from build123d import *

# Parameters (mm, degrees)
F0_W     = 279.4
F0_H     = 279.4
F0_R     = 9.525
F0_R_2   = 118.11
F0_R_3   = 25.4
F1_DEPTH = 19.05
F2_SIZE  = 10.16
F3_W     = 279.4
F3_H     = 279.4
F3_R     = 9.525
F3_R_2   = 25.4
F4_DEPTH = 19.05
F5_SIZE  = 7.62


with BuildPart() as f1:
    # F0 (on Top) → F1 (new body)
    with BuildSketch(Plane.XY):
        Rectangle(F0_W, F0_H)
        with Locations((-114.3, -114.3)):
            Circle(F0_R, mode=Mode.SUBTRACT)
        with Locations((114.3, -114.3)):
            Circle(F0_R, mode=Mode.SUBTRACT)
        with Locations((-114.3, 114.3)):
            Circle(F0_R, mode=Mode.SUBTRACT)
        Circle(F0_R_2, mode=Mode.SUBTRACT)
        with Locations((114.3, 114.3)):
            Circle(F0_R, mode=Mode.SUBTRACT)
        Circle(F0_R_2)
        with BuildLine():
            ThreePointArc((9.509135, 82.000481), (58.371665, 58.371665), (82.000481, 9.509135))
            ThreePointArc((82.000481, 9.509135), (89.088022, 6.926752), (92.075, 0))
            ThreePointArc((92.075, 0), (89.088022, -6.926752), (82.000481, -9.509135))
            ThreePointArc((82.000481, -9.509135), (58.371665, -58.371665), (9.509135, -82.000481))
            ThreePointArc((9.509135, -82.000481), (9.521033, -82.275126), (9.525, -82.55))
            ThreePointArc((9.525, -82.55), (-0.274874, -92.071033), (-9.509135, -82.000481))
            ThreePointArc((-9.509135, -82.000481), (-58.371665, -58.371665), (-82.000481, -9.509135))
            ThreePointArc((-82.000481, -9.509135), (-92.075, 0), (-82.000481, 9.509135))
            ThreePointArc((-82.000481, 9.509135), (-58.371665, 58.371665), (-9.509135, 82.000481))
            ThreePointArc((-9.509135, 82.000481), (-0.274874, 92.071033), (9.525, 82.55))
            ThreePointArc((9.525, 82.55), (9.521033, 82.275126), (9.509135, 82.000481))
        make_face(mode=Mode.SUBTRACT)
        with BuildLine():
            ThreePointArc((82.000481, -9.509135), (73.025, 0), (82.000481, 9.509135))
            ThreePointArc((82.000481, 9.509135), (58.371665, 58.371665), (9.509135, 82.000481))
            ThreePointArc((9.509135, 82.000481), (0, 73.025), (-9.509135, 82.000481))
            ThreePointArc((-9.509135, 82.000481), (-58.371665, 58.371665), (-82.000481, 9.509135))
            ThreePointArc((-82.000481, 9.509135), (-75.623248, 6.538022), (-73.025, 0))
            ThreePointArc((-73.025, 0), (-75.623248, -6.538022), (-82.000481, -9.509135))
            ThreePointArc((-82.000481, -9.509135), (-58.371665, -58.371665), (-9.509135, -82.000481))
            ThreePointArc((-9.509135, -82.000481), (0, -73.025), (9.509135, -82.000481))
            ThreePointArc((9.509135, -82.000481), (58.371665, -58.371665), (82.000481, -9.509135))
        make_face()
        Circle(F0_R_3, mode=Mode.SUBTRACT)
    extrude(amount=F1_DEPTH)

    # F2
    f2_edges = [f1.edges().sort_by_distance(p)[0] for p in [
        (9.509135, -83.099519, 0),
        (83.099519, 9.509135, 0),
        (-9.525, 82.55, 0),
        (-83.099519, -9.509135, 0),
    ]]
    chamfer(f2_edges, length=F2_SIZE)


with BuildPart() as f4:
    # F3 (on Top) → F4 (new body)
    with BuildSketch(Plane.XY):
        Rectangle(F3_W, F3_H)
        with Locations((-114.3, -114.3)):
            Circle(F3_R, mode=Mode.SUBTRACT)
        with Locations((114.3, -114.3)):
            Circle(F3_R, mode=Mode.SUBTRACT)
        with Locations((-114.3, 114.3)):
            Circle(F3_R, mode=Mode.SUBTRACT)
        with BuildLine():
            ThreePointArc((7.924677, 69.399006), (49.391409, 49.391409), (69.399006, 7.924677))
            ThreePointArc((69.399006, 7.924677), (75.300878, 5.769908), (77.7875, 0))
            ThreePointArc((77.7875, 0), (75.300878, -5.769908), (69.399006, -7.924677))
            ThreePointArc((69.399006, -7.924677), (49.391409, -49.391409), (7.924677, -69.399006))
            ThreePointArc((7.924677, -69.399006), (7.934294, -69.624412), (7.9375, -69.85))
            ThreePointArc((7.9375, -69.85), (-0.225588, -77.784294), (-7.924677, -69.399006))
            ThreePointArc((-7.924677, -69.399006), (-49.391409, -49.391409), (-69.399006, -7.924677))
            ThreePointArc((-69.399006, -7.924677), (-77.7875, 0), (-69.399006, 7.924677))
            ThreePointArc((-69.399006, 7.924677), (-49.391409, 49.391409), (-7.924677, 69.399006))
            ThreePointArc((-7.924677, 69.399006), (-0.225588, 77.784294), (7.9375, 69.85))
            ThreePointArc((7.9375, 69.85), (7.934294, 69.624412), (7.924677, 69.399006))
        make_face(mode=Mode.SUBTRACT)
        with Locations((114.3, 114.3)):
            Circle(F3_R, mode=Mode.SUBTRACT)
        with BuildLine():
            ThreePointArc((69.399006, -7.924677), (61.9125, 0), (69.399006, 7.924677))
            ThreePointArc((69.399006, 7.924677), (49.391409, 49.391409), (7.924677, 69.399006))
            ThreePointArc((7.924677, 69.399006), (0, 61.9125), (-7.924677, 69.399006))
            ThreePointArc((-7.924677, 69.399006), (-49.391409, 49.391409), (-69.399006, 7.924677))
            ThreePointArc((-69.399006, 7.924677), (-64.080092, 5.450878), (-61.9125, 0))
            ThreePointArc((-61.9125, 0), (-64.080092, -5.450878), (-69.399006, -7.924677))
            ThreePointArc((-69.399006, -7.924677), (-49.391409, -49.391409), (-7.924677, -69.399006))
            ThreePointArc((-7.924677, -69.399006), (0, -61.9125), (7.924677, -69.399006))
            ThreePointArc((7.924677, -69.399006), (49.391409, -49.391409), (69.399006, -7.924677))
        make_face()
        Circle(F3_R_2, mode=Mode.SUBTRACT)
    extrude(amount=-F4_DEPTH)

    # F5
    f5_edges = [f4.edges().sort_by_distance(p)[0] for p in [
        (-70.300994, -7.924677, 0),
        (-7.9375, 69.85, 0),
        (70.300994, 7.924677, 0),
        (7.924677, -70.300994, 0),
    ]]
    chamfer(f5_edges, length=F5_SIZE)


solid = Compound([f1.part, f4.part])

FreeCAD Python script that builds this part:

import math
import FreeCAD as App
import Part
import Sketcher
Q = App.Units.Quantity


def edges_at(feature, points):
    """Names of the edges that pass closest to the given points."""
    edges = feature.Shape.Edges
    near = lambda p: min(range(len(edges)), key=lambda i: edges[i].distToShape(Part.Vertex(*p))[0])
    return sorted({f"Edge{near(p) + 1}" for p in points})

doc = App.newDocument("Part")
body = doc.addObject("PartDesign::Body", "Body")

sketch1 = body.newObject("Sketcher::SketchObject", "Sketch")
sketch1.AttachmentSupport = (doc.getObject("XY_Plane"), [""])
sketch1.MapMode = "FlatFace"
sketch1.addGeometry([
    Part.LineSegment(App.Vector(-139.7, 139.7, 0), App.Vector(-139.7, -139.7, 0)),
    Part.LineSegment(App.Vector(-139.7, -139.7, 0), App.Vector(139.7, -139.7, 0)),
    Part.LineSegment(App.Vector(139.7, -139.7, 0), App.Vector(139.7, 139.7, 0)),
    Part.LineSegment(App.Vector(139.7, 139.7, 0), App.Vector(-139.7, 139.7, 0)),
    Part.Circle(App.Vector(-114.3, -114.3, 0), App.Vector(0, 0, 1), 9.525),
    Part.ArcOfCircle(Part.Circle(App.Vector(0, -82.55, 0), App.Vector(0, 0, 1), 9.525), math.radians(176.692638), math.radians(360.000001)),
    Part.ArcOfCircle(Part.Circle(App.Vector(0, -82.55, 0), App.Vector(0, 0, 1), 9.525), math.radians(3.307359), math.radians(176.692641)),
    Part.ArcOfCircle(Part.Circle(App.Vector(0.000355, -82.549995, 0), App.Vector(0, 0, 1), 9.524645), math.radians(-0.000032), math.radians(3.307452)),
    Part.Circle(App.Vector(114.3, -114.3, 0), App.Vector(0, 0, 1), 9.525),
    Part.ArcOfCircle(Part.Circle(App.Vector(-82.55, 0, 0), App.Vector(0, 0, 1), 9.525), math.radians(86.692637), math.radians(273.307363)),
    Part.ArcOfCircle(Part.Circle(App.Vector(-82.549999, 0, 0), App.Vector(0, 0, 1), 9.524999), math.radians(-0.000001), math.radians(86.692642)),
    Part.ArcOfCircle(Part.Circle(App.Vector(-82.549999, 0, 0), App.Vector(0, 0, 1), 9.524999), math.radians(-86.692642), math.radians(0.000001)),
    Part.Circle(App.Vector(-114.3, 114.3, 0), App.Vector(0, 0, 1), 9.525),
    Part.Circle(App.Vector(0, 0, 0), App.Vector(0, 0, 1), 25.4),
    Part.ArcOfCircle(Part.Circle(App.Vector(82.55, 0, 0), App.Vector(0, 0, 1), 9.525), math.radians(-93.307364), math.radians(0.000001)),
    Part.ArcOfCircle(Part.Circle(App.Vector(82.55, 0, 0), App.Vector(0, 0, 1), 9.525), math.radians(93.307359), math.radians(266.692641)),
    Part.ArcOfCircle(Part.Circle(App.Vector(82.55, 0, 0), App.Vector(0, 0, 1), 9.525), math.radians(-0.000001), math.radians(93.307364)),
    Part.ArcOfCircle(Part.Circle(App.Vector(0.000355, 82.549995, 0), App.Vector(0, 0, 1), 9.524645), math.radians(-3.307452), math.radians(0.000032)),
    Part.ArcOfCircle(Part.Circle(App.Vector(0, 82.55, 0), App.Vector(0, 0, 1), 9.525), math.radians(-176.692641), math.radians(-3.307359)),
    Part.ArcOfCircle(Part.Circle(App.Vector(0, 82.55, 0), App.Vector(0, 0, 1), 9.525), math.radians(-0.000001), math.radians(183.307362)),
    Part.Circle(App.Vector(114.3, 114.3, 0), App.Vector(0, 0, 1), 9.525),
], False)
sketch1.addConstraint([
    Sketcher.Constraint("Coincident", 0, 2, 1, 1),
    Sketcher.Constraint("Coincident", 1, 2, 2, 1),
    Sketcher.Constraint("Coincident", 2, 2, 3, 1),
    Sketcher.Constraint("Coincident", 3, 2, 0, 1),
    Sketcher.Constraint("Coincident", 5, 1, 6, 2),
    Sketcher.Constraint("Coincident", 6, 1, 7, 2),
    Sketcher.Constraint("Coincident", 7, 1, 5, 2),
    Sketcher.Constraint("Coincident", 9, 1, 10, 2),
    Sketcher.Constraint("Coincident", 10, 1, 11, 2),
    Sketcher.Constraint("Coincident", 11, 1, 9, 2),
    Sketcher.Constraint("Coincident", 14, 1, 15, 2),
    Sketcher.Constraint("Coincident", 15, 1, 16, 2),
    Sketcher.Constraint("Coincident", 16, 1, 14, 2),
    Sketcher.Constraint("Coincident", 17, 1, 18, 2),
    Sketcher.Constraint("Coincident", 18, 1, 19, 2),
    Sketcher.Constraint("Coincident", 19, 1, 17, 2),
    Sketcher.Constraint("Vertical", 0),
    Sketcher.Constraint("Horizontal", 1),
    Sketcher.Constraint("Vertical", 2),
    Sketcher.Constraint("Horizontal", 3),
    Sketcher.Constraint("Coincident", 13, 3, -1, 1),
    Sketcher.Constraint("Coincident", 6, 3, 5, 3),
    Sketcher.Constraint("Coincident", 10, 3, 9, 3),
    Sketcher.Constraint("Coincident", 15, 3, 14, 3),
    Sketcher.Constraint("Coincident", 19, 3, 18, 3),
    Sketcher.Constraint("PointOnObject", 5, 3, -2),
    Sketcher.Constraint("PointOnObject", 9, 3, -1),
    Sketcher.Constraint("PointOnObject", 11, 3, -1),
    Sketcher.Constraint("PointOnObject", 14, 3, -1),
    Sketcher.Constraint("PointOnObject", 16, 3, -1),
    Sketcher.Constraint("PointOnObject", 18, 3, -2),
    Sketcher.Constraint("PointOnObject", 10, 1, -1),
    Sketcher.Constraint("PointOnObject", 16, 1, -1),
    Sketcher.Constraint("Diameter", 13, Q("2 in")),
    Sketcher.Constraint("Diameter", 4, Q("0.75 in")),
    Sketcher.Constraint("Diameter", 8, Q("0.75 in")),
    Sketcher.Constraint("Diameter", 12, Q("0.75 in")),
    Sketcher.Constraint("Diameter", 20, Q("0.75 in")),
    Sketcher.Constraint("DistanceX", 1, 1, 1, 2, Q("11 in")),
    Sketcher.Constraint("DistanceY", 0, 2, 0, 1, Q("11 in")),
    Sketcher.Constraint("Radius", 5, Q("0.375 in")),
    Sketcher.Constraint("Radius", 9, Q("0.375 in")),
    Sketcher.Constraint("Radius", 14, Q("0.375 in")),
    Sketcher.Constraint("Radius", 18, Q("0.375 in")),
    Sketcher.Constraint("DistanceX", 4, 3, 8, 3, Q("9 in")),
    Sketcher.Constraint("DistanceX", 0, 2, 4, 3, Q("1 in")),
    Sketcher.Constraint("DistanceY", 0, 2, 4, 3, Q("1 in")),
    Sketcher.Constraint("DistanceY", 1, 2, 8, 3, Q("1 in")),
    Sketcher.Constraint("DistanceX", 20, 3, 2, 2, Q("1 in")),
    Sketcher.Constraint("DistanceY", 20, 3, 2, 2, Q("1 in")),
    Sketcher.Constraint("DistanceX", 3, 2, 12, 3, Q("1 in")),
    Sketcher.Constraint("DistanceY", 12, 3, 3, 2, Q("1 in")),
    Sketcher.Constraint("DistanceX", 4, 3, -1, 1, Q("4.5 in")),
    Sketcher.Constraint("DistanceY", 4, 3, -1, 1, Q("4.5 in")),
    Sketcher.Constraint("DistanceY", 5, 3, -1, 1, Q("3.25 in")),
    Sketcher.Constraint("DistanceX", 9, 3, -1, 1, Q("3.25 in")),
    Sketcher.Constraint("DistanceX", -1, 1, 14, 3, Q("3.25 in")),
    Sketcher.Constraint("DistanceY", -1, 1, 18, 3, Q("3.25 in")),
    Sketcher.Constraint("DistanceY", 7, 1, -1, 1, Q("3.25 in")),
    Sketcher.Constraint("DistanceY", -1, 1, 19, 1, Q("3.25 in")),
    Sketcher.Constraint("Radius", 7, 9.524645),
    Sketcher.Constraint("Radius", 17, 9.524645),
    Sketcher.Constraint("DistanceY", 5, 1, -1, 1, 82.000481),
    Sketcher.Constraint("DistanceY", 6, 1, -1, 1, 82.000481),
    Sketcher.Constraint("DistanceX", 9, 1, -1, 1, 82.000481),
    Sketcher.Constraint("DistanceX", 11, 1, -1, 1, 82.000481),
    Sketcher.Constraint("DistanceX", -1, 1, 14, 1, 82.000481),
    Sketcher.Constraint("DistanceX", -1, 1, 15, 1, 82.000481),
    Sketcher.Constraint("DistanceY", -1, 1, 17, 1, 82.000481),
    Sketcher.Constraint("DistanceY", -1, 1, 18, 1, 82.000481),
])
pad1 = body.newObject("PartDesign::Pad", "Pad")
pad1.Profile = sketch1
pad1.Length = Q("0.75 in")
doc.recompute()

chamfer = body.newObject("PartDesign::Chamfer", "Chamfer")
chamfer.Base = (pad1, edges_at(pad1, [
    (-0.275, -92.071, 0),
    (89.088, 6.927, 0),
    (-0.275, 92.071, 0),
    (-92.075, 0, 0),
]))
chamfer.Size = Q("0.4 in")
body2 = doc.addObject("PartDesign::Body", "Body001")

sketch2 = body2.newObject("Sketcher::SketchObject", "Sketch001")
sketch2.AttachmentSupport = (doc.getObject("XY_Plane001"), [""])
sketch2.MapMode = "FlatFace"
sketch2.addGeometry([
    Part.LineSegment(App.Vector(-139.7, 139.7, 0), App.Vector(-139.7, -139.7, 0)),
    Part.LineSegment(App.Vector(-139.7, -139.7, 0), App.Vector(139.7, -139.7, 0)),
    Part.LineSegment(App.Vector(139.7, -139.7, 0), App.Vector(139.7, 139.7, 0)),
    Part.LineSegment(App.Vector(139.7, 139.7, 0), App.Vector(-139.7, 139.7, 0)),
    Part.Circle(App.Vector(-114.3, -114.3, 0), App.Vector(0, 0, 1), 9.525),
    Part.ArcOfCircle(Part.Circle(App.Vector(0, -69.85, 0), App.Vector(0, 0, 1), 7.9375), math.radians(176.742803), math.radians(360.000003)),
    Part.ArcOfCircle(Part.Circle(App.Vector(0, -69.85, 0), App.Vector(0, 0, 1), 7.9375), math.radians(3.257192), math.radians(176.742808)),
    Part.ArcOfCircle(Part.Circle(App.Vector(0.001173, -69.849972, 0), App.Vector(0, 0, 1), 7.936327), math.radians(-0.0002), math.radians(3.257476)),
    Part.Circle(App.Vector(114.3, -114.3, 0), App.Vector(0, 0, 1), 9.525),
    Part.ArcOfCircle(Part.Circle(App.Vector(-69.85, 0, 0), App.Vector(0, 0, 1), 7.9375), math.radians(86.742804), math.radians(273.257196)),
    Part.ArcOfCircle(Part.Circle(App.Vector(-69.849999, 0.000001, 0), App.Vector(0, 0, 1), 7.937499), math.radians(-0.000005), math.radians(86.742814)),
    Part.ArcOfCircle(Part.Circle(App.Vector(-69.849999, -0.000001, 0), App.Vector(0, 0, 1), 7.937499), math.radians(-86.742814), math.radians(0.000005)),
    Part.Circle(App.Vector(-114.3, 114.3, 0), App.Vector(0, 0, 1), 9.525),
    Part.Circle(App.Vector(0, 0, 0), App.Vector(0, 0, 1), 25.4),
    Part.ArcOfCircle(Part.Circle(App.Vector(69.850001, 0.000001, 0), App.Vector(0, 0, 1), 7.937499), math.radians(-0.000005), math.radians(93.257201)),
    Part.ArcOfCircle(Part.Circle(App.Vector(69.850001, -0.000001, 0), App.Vector(0, 0, 1), 7.937499), math.radians(-93.257201), math.radians(0.000005)),
    Part.ArcOfCircle(Part.Circle(App.Vector(69.85, 0, 0), App.Vector(0, 0, 1), 7.9375), math.radians(93.257192), math.radians(266.742808)),
    Part.ArcOfCircle(Part.Circle(App.Vector(0.001173, 69.849972, 0), App.Vector(0, 0, 1), 7.936327), math.radians(-3.257476), math.radians(0.0002)),
    Part.ArcOfCircle(Part.Circle(App.Vector(0, 69.85, 0), App.Vector(0, 0, 1), 7.9375), math.radians(-176.742808), math.radians(-3.257192)),
    Part.ArcOfCircle(Part.Circle(App.Vector(0, 69.85, 0), App.Vector(0, 0, 1), 7.9375), math.radians(-0.000003), math.radians(183.257197)),
    Part.Circle(App.Vector(114.3, 114.3, 0), App.Vector(0, 0, 1), 9.525),
], False)
sketch2.addConstraint([
    Sketcher.Constraint("Coincident", 0, 2, 1, 1),
    Sketcher.Constraint("Coincident", 1, 2, 2, 1),
    Sketcher.Constraint("Coincident", 2, 2, 3, 1),
    Sketcher.Constraint("Coincident", 3, 2, 0, 1),
    Sketcher.Constraint("Tangent", 5, 1, 6, 2),
    Sketcher.Constraint("Coincident", 6, 1, 7, 2),
    Sketcher.Constraint("Coincident", 7, 1, 5, 2),
    Sketcher.Constraint("Tangent", 9, 1, 10, 2),
    Sketcher.Constraint("Tangent", 10, 1, 11, 2),
    Sketcher.Constraint("Tangent", 11, 1, 9, 2),
    Sketcher.Constraint("Tangent", 14, 1, 15, 2),
    Sketcher.Constraint("Tangent", 15, 1, 16, 2),
    Sketcher.Constraint("Tangent", 16, 1, 14, 2),
    Sketcher.Constraint("Coincident", 17, 1, 18, 2),
    Sketcher.Constraint("Tangent", 18, 1, 19, 2),
    Sketcher.Constraint("Coincident", 19, 1, 17, 2),
    Sketcher.Constraint("Vertical", 0),
    Sketcher.Constraint("Horizontal", 1),
    Sketcher.Constraint("Vertical", 2),
    Sketcher.Constraint("Horizontal", 3),
    Sketcher.Constraint("Coincident", 13, 3, -1, 1),
    Sketcher.Constraint("Equal", 5, 6),
    Sketcher.Constraint("Equal", 4, 8),
    Sketcher.Constraint("Equal", 6, 9),
    Sketcher.Constraint("Equal", 8, 12),
    Sketcher.Constraint("Equal", 11, 14),
    Sketcher.Constraint("Equal", 7, 17),
    Sketcher.Constraint("Equal", 16, 18),
    Sketcher.Constraint("Equal", 18, 19),
    Sketcher.Constraint("Equal", 12, 20),
    Sketcher.Constraint("Symmetric", 8, 3, 12, 3, -1, 1),
    Sketcher.Constraint("Symmetric", 9, 3, 14, 3, -1, 1),
    Sketcher.Constraint("Symmetric", 5, 3, 18, 3, -1, 1),
    Sketcher.Constraint("Symmetric", 4, 3, 20, 3, -1, 1),
    Sketcher.Constraint("Symmetric", 0, 2, 2, 2, -1, 1),
    Sketcher.Constraint("Symmetric", 4, 3, 8, 3, -2),
    Sketcher.Constraint("Symmetric", 5, 1, 6, 1, -2),
    Sketcher.Constraint("Symmetric", 11, 1, 15, 1, -2),
    Sketcher.Constraint("PointOnObject", 10, 1, -1),
    Sketcher.Constraint("PointOnObject", 14, 1, -1),
    Sketcher.Constraint("Horizontal", 6, 3, 7, 1),
    Sketcher.Constraint("Horizontal", 9, 1, 16, 1),
    Sketcher.Constraint("Horizontal", 17, 1, 18, 1),
    Sketcher.Constraint("Horizontal", 18, 3, 19, 1),
    Sketcher.Constraint("Vertical", 9, 1, 11, 1),
    Sketcher.Constraint("Vertical", 6, 1, 17, 1),
    Sketcher.Constraint("Equal", 3, 0),
    Sketcher.Constraint("Diameter", 13, Q("2 in")),
    Sketcher.Constraint("Diameter", 4, Q("0.75 in")),
    Sketcher.Constraint("DistanceX", 1, 1, 1, 2, Q("11 in")),
    Sketcher.Constraint("Radius", 5, Q("0.3125 in")),
    Sketcher.Constraint("DistanceX", 4, 3, 8, 3, Q("9 in")),
    Sketcher.Constraint("DistanceY", 0, 2, 4, 3, Q("1 in")),
    Sketcher.Constraint("DistanceY", 5, 3, -1, 1, Q("2.75 in")),
    Sketcher.Constraint("DistanceX", 9, 3, -1, 1, Q("2.75 in")),
    Sketcher.Constraint("Radius", 7, 7.936327),
    Sketcher.Constraint("DistanceX", 5, 1, 7, 3, 7.92585),
    Sketcher.Constraint("DistanceX", 17, 1, 16, 1, 61.474329),
])
pad2 = body2.newObject("PartDesign::Pad", "Pad001")
pad2.Profile = sketch2
pad2.Length = Q("0.75 in")
pad2.Reversed = True
doc.recompute()

chamfer2 = body2.newObject("PartDesign::Chamfer", "Chamfer001")
chamfer2.Base = (pad2, edges_at(pad2, [
    (-77.787, 0, 0),
    (-0.226, 77.784, 0),
    (75.301, 5.77, 0),
    (-0.226, -77.784, 0),
]))
chamfer2.Size = Q("0.3 in")

doc.recompute()
